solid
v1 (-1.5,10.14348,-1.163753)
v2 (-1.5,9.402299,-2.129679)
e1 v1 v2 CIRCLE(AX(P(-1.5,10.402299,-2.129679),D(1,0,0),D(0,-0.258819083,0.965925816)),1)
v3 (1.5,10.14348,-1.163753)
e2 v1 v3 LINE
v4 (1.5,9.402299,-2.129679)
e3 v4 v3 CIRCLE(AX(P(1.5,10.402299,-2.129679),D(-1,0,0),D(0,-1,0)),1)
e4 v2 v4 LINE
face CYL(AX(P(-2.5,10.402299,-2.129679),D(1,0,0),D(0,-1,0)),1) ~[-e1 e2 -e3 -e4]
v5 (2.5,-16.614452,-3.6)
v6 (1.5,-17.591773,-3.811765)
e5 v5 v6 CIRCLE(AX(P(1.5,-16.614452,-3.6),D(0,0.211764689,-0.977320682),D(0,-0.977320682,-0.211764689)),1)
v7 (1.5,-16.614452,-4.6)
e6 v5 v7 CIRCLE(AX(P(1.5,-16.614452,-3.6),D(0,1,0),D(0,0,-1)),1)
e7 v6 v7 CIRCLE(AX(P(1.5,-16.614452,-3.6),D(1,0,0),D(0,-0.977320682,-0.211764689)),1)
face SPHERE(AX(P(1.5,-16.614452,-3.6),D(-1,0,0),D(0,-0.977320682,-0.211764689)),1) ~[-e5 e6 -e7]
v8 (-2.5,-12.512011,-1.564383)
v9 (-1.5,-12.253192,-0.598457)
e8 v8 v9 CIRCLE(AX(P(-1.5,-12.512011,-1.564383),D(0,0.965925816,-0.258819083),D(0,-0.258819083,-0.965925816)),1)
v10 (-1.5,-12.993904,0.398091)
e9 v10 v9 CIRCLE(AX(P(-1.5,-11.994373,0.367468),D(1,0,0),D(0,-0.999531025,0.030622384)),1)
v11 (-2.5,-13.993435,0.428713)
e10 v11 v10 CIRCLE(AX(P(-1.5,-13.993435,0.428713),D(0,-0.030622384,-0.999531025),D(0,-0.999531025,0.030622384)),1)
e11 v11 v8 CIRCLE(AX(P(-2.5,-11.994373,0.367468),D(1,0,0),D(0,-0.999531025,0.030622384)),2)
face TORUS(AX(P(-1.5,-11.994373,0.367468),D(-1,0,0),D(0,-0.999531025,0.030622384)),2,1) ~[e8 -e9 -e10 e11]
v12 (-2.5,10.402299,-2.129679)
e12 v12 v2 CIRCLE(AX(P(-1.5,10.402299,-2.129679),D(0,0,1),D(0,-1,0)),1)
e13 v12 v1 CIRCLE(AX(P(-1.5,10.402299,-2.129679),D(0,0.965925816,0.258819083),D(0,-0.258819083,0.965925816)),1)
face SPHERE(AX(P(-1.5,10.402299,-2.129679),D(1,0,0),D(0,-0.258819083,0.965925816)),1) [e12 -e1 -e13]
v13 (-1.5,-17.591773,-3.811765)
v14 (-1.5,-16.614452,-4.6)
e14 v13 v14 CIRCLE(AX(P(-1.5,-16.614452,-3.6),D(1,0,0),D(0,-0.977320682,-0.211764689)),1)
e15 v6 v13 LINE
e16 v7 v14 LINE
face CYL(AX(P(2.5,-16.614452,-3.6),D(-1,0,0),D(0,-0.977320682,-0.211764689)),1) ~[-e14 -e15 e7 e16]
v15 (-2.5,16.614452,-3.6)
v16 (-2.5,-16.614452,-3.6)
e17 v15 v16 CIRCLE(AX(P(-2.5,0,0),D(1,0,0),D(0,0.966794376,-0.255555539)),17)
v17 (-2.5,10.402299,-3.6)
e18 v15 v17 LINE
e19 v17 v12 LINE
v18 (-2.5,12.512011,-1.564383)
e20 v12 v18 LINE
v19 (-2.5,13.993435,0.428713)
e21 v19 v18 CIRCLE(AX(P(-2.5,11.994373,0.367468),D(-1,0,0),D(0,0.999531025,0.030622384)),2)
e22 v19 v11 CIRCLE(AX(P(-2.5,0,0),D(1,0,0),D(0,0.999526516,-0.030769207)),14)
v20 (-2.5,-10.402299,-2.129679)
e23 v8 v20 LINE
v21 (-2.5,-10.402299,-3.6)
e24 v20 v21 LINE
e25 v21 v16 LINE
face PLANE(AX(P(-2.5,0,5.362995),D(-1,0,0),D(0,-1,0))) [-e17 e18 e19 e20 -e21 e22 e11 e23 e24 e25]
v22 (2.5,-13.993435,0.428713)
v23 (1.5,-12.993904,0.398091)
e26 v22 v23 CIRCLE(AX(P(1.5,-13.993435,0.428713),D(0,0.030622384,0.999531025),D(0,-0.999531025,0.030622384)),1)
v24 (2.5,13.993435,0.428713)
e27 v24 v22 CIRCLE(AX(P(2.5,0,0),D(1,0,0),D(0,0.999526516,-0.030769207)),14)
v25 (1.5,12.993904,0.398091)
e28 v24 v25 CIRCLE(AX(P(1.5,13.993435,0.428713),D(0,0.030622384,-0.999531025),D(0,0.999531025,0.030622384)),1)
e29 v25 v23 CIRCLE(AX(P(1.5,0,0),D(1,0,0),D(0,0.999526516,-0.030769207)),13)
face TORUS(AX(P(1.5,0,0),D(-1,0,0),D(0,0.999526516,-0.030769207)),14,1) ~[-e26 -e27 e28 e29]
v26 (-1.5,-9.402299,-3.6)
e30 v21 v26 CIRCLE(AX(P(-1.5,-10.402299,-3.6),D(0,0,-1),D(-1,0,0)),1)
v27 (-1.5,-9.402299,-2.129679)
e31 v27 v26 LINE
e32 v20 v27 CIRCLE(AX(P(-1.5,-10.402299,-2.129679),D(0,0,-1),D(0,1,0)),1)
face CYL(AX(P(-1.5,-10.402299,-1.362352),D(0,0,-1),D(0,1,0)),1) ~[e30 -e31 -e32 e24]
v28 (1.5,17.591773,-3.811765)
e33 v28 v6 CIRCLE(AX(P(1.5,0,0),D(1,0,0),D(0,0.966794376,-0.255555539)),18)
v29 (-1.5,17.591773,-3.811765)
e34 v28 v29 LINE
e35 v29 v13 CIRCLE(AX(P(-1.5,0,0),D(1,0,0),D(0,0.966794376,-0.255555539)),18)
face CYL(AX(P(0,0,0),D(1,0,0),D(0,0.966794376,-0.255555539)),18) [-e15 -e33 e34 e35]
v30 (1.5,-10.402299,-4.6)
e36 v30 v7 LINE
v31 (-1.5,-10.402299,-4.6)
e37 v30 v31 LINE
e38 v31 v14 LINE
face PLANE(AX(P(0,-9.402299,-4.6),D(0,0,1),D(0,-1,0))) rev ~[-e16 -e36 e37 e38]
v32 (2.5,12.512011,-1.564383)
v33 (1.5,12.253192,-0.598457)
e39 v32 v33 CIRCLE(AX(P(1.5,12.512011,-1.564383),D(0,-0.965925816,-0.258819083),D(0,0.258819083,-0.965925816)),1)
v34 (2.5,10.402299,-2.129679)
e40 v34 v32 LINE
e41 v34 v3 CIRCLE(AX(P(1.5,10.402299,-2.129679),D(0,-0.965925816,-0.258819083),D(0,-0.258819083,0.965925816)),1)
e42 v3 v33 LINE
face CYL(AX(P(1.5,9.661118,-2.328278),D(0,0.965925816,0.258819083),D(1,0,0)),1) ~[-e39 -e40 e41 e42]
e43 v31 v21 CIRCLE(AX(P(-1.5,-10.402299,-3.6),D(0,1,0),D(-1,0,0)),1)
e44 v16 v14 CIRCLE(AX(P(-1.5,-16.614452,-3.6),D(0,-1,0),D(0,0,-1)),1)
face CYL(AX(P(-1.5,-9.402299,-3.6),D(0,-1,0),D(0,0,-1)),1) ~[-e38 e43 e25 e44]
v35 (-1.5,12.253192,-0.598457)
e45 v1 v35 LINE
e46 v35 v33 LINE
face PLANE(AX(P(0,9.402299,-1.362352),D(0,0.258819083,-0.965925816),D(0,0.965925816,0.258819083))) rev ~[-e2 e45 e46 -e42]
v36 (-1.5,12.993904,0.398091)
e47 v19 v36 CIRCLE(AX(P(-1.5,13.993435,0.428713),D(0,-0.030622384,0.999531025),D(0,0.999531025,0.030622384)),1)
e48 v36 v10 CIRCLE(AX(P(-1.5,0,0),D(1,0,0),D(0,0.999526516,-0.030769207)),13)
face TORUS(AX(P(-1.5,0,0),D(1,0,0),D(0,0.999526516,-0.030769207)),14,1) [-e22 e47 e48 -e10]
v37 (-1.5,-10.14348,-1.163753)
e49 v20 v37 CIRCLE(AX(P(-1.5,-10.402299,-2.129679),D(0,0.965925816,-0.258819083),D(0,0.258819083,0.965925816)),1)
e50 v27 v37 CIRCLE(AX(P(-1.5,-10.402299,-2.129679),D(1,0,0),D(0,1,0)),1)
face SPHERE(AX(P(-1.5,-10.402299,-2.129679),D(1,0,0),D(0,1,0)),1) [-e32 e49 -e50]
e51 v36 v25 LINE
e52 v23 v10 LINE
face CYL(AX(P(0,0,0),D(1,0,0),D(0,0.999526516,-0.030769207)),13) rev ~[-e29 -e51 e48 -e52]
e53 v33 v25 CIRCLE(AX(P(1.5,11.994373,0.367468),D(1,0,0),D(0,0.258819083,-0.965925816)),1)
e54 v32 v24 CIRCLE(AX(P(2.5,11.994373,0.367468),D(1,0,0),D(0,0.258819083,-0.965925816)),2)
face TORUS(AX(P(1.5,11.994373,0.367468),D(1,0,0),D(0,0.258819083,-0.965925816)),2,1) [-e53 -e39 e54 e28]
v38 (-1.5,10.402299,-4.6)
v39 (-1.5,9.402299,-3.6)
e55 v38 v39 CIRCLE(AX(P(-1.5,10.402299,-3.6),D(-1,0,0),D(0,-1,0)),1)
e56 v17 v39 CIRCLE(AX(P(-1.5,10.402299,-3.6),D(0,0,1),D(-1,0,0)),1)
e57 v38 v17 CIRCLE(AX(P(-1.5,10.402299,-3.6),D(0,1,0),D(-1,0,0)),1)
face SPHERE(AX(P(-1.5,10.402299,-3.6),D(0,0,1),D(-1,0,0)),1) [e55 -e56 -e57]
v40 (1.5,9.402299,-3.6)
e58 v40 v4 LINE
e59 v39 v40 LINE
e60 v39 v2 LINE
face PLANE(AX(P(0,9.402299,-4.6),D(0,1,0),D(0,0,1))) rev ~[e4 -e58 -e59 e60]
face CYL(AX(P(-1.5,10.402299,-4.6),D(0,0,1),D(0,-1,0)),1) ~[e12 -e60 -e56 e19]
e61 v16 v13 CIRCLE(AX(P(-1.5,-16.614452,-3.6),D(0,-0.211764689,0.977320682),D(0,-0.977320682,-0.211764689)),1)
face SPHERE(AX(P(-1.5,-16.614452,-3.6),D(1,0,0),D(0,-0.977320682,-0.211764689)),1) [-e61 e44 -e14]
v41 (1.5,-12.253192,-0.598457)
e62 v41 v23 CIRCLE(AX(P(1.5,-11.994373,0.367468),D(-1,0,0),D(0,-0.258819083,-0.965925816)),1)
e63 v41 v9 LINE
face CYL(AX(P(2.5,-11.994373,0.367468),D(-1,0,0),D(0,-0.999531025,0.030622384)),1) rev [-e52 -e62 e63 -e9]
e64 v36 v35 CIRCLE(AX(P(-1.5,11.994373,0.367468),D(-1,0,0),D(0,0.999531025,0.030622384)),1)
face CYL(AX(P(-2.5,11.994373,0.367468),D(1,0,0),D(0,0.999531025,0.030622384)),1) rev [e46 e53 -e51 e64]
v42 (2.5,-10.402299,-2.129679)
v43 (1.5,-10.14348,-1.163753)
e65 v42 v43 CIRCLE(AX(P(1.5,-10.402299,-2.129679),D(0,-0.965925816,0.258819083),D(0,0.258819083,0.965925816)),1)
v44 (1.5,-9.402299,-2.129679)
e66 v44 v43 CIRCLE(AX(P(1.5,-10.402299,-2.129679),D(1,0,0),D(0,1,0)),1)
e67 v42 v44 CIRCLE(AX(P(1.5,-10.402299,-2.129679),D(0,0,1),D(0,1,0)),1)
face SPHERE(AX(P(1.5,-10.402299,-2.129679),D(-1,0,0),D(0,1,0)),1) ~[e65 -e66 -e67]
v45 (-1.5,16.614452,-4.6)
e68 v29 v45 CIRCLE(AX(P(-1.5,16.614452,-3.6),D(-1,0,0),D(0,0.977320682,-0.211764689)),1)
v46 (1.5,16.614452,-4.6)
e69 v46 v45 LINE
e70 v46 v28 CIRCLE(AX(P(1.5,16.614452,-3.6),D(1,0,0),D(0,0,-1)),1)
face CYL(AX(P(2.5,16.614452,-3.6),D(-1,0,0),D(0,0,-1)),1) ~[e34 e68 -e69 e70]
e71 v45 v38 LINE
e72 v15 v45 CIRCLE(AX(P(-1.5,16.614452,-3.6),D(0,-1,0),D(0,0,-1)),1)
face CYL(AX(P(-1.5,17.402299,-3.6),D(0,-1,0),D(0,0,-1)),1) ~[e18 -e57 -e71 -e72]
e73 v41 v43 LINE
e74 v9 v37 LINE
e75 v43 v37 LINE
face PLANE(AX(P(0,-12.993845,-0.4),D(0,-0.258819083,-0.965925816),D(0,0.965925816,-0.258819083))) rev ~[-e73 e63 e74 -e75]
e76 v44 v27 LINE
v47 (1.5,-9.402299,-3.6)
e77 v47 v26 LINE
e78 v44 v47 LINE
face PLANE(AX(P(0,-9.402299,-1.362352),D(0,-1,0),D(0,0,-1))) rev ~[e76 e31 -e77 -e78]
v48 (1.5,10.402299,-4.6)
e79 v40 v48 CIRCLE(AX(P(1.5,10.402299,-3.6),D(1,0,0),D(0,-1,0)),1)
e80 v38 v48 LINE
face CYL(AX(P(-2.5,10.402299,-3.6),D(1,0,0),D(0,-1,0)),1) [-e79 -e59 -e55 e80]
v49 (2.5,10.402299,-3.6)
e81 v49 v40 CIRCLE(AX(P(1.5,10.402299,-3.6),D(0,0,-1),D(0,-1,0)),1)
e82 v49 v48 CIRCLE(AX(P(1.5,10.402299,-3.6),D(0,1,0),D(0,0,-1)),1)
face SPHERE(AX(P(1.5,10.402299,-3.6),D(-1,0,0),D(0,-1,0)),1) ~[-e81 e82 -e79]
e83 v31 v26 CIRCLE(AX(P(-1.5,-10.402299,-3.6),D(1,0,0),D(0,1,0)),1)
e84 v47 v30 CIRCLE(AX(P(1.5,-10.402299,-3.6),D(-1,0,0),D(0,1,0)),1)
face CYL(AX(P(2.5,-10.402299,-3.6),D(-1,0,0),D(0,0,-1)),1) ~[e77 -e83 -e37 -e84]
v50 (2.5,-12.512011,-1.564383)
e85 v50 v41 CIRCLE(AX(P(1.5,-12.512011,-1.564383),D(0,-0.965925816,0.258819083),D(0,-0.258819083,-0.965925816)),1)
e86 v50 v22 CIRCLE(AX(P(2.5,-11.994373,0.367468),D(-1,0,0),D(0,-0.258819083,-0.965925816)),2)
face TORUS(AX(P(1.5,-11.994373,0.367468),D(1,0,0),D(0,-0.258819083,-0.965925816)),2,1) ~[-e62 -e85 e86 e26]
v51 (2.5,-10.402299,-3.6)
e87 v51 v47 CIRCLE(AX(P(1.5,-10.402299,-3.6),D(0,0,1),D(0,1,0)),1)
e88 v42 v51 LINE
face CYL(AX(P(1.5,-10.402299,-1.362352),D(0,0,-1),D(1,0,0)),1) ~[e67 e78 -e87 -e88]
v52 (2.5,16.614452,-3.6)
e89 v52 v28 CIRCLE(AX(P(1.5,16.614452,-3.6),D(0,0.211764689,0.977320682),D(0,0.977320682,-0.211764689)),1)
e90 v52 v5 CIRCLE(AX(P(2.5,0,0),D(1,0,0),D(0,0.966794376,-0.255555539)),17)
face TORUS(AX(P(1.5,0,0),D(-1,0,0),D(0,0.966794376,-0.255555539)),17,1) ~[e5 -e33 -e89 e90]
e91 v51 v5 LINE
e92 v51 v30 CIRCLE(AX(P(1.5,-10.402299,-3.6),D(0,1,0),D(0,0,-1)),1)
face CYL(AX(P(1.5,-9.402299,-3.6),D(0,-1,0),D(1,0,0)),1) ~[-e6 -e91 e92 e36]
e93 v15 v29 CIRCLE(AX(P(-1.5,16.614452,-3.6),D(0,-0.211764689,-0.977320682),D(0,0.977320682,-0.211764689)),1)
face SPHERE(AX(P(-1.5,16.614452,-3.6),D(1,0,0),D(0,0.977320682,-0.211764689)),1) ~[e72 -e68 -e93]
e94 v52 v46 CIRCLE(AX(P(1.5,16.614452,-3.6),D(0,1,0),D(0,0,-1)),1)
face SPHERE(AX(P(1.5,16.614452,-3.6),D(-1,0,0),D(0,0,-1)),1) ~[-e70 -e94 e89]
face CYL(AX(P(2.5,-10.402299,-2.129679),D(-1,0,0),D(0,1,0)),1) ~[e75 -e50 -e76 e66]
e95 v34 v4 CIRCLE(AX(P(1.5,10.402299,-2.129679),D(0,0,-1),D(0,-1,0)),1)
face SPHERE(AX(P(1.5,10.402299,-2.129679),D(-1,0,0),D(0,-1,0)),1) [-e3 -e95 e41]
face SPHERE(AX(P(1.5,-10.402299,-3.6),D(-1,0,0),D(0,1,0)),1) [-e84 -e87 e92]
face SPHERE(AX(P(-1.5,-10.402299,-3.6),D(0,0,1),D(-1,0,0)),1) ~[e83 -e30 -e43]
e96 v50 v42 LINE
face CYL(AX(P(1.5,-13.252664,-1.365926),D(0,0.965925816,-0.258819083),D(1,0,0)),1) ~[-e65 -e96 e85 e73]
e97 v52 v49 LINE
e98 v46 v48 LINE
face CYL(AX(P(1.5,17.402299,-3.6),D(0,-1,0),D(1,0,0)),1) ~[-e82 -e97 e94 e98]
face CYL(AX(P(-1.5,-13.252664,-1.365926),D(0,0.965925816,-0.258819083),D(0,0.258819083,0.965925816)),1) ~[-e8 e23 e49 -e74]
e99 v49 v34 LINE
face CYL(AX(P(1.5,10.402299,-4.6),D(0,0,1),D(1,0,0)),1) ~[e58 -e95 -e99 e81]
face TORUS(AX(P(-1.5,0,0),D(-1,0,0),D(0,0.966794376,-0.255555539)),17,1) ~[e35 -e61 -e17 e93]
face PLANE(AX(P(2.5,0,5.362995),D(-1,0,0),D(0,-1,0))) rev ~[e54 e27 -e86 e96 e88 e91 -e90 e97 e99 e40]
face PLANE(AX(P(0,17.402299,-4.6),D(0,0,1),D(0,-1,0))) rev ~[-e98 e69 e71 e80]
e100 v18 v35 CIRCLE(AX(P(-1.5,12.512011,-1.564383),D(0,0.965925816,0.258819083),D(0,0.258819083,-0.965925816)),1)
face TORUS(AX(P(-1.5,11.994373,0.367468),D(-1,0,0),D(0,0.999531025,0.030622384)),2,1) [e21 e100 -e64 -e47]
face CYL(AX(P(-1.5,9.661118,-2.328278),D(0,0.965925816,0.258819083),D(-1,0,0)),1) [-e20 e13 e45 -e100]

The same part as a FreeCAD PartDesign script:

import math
import FreeCAD as App
import Part
import Sketcher

V = App.Vector
Q = App.Units.Quantity

doc = App.newDocument("Part")
body = doc.addObject("PartDesign::Body", "Body")

# Sketch on YZ plane
sketch1 = doc.addObject("Sketcher::SketchObject", "Sketch")
body.addObject(sketch1)
sketch1.AttachmentSupport = (doc.YZ_Plane, [""])
sketch1.MapMode = "FlatFace"
sketch1.addGeometry([
    Part.ArcOfCircle(Part.Circle(V(0, 0, 0), V(0, 0, 1), 13), math.radians(-2), math.radians(182)),  # 0
    Part.LineSegment(V(13, -0.4, 0), V(9.4, -1.4, 0)),  # 1
    Part.LineSegment(V(9.4, -1.4, 0), V(9.4, -4.6, 0)),  # 2
    Part.LineSegment(V(9.4, -4.6, 0), V(17.4, -4.6, 0)),  # 3
    Part.ArcOfCircle(Part.Circle(V(0, 0, 0), V(0, 0, 1), 18), math.radians(-15), math.radians(195)),  # 4
    Part.LineSegment(V(-17.4, -4.6, 0), V(-9.4, -4.6, 0)),  # 5
    Part.LineSegment(V(-9.4, -4.6, 0), V(-9.4, -1.4, 0)),  # 6
    Part.LineSegment(V(-9.4, -1.4, 0), V(-13, -0.4, 0)),  # 7
], False)
sketch1.addConstraint([
    Sketcher.Constraint("Coincident", 0, 1, 1, 1),
    Sketcher.Constraint("Coincident", 1, 2, 2, 1),
    Sketcher.Constraint("Coincident", 2, 2, 3, 1),
    Sketcher.Constraint("Coincident", 3, 2, 4, 1),
    Sketcher.Constraint("Coincident", 4, 2, 5, 1),
    Sketcher.Constraint("Coincident", 5, 2, 6, 1),
    Sketcher.Constraint("Coincident", 6, 2, 7, 1),
    Sketcher.Constraint("Coincident", 7, 2, 0, 2),
    Sketcher.Constraint("Vertical", 2),
    Sketcher.Constraint("Horizontal", 3),
    Sketcher.Constraint("Horizontal", 5),
    Sketcher.Constraint("Vertical", 6),
    Sketcher.Constraint("Coincident", 0, 3, -1, 1),
    Sketcher.Constraint("Coincident", 4, 3, -1, 1),
    Sketcher.Constraint("Symmetric", 2, 2, 5, 2, -2),
    Sketcher.Constraint("Horizontal", 1, 2, 6, 2),
    Sketcher.Constraint("Horizontal", 0, 1, 7, 2),
    Sketcher.Constraint("Radius", 0, Q("13 mm")),
    Sketcher.Constraint("Radius", 4, Q("18 mm")),
    Sketcher.Constraint("DistanceX", 3, 1, 3, 2, Q("8 mm")),
    Sketcher.Constraint("Angle", 1, Q("-164.999998 deg")),
    Sketcher.Constraint("DistanceY", 0, 1, -1, 1, Q("0.4 mm")),
    Sketcher.Constraint("DistanceY", 2, 2, -1, 1, Q("4.6 mm")),
])
pad1 = doc.addObject("PartDesign::Pad", "Pad")
body.addObject(pad1)
pad1.Profile = sketch1
pad1.Length = 5
pad1.Midplane = True
doc.recompute()

fillet = doc.addObject("PartDesign::Fillet", "Fillet")
body.addObject(fillet)
fillet.Base = (pad1, ["Edge1"])
fillet.UseAllEdges = True
fillet.Radius = 1

doc.recompute()
